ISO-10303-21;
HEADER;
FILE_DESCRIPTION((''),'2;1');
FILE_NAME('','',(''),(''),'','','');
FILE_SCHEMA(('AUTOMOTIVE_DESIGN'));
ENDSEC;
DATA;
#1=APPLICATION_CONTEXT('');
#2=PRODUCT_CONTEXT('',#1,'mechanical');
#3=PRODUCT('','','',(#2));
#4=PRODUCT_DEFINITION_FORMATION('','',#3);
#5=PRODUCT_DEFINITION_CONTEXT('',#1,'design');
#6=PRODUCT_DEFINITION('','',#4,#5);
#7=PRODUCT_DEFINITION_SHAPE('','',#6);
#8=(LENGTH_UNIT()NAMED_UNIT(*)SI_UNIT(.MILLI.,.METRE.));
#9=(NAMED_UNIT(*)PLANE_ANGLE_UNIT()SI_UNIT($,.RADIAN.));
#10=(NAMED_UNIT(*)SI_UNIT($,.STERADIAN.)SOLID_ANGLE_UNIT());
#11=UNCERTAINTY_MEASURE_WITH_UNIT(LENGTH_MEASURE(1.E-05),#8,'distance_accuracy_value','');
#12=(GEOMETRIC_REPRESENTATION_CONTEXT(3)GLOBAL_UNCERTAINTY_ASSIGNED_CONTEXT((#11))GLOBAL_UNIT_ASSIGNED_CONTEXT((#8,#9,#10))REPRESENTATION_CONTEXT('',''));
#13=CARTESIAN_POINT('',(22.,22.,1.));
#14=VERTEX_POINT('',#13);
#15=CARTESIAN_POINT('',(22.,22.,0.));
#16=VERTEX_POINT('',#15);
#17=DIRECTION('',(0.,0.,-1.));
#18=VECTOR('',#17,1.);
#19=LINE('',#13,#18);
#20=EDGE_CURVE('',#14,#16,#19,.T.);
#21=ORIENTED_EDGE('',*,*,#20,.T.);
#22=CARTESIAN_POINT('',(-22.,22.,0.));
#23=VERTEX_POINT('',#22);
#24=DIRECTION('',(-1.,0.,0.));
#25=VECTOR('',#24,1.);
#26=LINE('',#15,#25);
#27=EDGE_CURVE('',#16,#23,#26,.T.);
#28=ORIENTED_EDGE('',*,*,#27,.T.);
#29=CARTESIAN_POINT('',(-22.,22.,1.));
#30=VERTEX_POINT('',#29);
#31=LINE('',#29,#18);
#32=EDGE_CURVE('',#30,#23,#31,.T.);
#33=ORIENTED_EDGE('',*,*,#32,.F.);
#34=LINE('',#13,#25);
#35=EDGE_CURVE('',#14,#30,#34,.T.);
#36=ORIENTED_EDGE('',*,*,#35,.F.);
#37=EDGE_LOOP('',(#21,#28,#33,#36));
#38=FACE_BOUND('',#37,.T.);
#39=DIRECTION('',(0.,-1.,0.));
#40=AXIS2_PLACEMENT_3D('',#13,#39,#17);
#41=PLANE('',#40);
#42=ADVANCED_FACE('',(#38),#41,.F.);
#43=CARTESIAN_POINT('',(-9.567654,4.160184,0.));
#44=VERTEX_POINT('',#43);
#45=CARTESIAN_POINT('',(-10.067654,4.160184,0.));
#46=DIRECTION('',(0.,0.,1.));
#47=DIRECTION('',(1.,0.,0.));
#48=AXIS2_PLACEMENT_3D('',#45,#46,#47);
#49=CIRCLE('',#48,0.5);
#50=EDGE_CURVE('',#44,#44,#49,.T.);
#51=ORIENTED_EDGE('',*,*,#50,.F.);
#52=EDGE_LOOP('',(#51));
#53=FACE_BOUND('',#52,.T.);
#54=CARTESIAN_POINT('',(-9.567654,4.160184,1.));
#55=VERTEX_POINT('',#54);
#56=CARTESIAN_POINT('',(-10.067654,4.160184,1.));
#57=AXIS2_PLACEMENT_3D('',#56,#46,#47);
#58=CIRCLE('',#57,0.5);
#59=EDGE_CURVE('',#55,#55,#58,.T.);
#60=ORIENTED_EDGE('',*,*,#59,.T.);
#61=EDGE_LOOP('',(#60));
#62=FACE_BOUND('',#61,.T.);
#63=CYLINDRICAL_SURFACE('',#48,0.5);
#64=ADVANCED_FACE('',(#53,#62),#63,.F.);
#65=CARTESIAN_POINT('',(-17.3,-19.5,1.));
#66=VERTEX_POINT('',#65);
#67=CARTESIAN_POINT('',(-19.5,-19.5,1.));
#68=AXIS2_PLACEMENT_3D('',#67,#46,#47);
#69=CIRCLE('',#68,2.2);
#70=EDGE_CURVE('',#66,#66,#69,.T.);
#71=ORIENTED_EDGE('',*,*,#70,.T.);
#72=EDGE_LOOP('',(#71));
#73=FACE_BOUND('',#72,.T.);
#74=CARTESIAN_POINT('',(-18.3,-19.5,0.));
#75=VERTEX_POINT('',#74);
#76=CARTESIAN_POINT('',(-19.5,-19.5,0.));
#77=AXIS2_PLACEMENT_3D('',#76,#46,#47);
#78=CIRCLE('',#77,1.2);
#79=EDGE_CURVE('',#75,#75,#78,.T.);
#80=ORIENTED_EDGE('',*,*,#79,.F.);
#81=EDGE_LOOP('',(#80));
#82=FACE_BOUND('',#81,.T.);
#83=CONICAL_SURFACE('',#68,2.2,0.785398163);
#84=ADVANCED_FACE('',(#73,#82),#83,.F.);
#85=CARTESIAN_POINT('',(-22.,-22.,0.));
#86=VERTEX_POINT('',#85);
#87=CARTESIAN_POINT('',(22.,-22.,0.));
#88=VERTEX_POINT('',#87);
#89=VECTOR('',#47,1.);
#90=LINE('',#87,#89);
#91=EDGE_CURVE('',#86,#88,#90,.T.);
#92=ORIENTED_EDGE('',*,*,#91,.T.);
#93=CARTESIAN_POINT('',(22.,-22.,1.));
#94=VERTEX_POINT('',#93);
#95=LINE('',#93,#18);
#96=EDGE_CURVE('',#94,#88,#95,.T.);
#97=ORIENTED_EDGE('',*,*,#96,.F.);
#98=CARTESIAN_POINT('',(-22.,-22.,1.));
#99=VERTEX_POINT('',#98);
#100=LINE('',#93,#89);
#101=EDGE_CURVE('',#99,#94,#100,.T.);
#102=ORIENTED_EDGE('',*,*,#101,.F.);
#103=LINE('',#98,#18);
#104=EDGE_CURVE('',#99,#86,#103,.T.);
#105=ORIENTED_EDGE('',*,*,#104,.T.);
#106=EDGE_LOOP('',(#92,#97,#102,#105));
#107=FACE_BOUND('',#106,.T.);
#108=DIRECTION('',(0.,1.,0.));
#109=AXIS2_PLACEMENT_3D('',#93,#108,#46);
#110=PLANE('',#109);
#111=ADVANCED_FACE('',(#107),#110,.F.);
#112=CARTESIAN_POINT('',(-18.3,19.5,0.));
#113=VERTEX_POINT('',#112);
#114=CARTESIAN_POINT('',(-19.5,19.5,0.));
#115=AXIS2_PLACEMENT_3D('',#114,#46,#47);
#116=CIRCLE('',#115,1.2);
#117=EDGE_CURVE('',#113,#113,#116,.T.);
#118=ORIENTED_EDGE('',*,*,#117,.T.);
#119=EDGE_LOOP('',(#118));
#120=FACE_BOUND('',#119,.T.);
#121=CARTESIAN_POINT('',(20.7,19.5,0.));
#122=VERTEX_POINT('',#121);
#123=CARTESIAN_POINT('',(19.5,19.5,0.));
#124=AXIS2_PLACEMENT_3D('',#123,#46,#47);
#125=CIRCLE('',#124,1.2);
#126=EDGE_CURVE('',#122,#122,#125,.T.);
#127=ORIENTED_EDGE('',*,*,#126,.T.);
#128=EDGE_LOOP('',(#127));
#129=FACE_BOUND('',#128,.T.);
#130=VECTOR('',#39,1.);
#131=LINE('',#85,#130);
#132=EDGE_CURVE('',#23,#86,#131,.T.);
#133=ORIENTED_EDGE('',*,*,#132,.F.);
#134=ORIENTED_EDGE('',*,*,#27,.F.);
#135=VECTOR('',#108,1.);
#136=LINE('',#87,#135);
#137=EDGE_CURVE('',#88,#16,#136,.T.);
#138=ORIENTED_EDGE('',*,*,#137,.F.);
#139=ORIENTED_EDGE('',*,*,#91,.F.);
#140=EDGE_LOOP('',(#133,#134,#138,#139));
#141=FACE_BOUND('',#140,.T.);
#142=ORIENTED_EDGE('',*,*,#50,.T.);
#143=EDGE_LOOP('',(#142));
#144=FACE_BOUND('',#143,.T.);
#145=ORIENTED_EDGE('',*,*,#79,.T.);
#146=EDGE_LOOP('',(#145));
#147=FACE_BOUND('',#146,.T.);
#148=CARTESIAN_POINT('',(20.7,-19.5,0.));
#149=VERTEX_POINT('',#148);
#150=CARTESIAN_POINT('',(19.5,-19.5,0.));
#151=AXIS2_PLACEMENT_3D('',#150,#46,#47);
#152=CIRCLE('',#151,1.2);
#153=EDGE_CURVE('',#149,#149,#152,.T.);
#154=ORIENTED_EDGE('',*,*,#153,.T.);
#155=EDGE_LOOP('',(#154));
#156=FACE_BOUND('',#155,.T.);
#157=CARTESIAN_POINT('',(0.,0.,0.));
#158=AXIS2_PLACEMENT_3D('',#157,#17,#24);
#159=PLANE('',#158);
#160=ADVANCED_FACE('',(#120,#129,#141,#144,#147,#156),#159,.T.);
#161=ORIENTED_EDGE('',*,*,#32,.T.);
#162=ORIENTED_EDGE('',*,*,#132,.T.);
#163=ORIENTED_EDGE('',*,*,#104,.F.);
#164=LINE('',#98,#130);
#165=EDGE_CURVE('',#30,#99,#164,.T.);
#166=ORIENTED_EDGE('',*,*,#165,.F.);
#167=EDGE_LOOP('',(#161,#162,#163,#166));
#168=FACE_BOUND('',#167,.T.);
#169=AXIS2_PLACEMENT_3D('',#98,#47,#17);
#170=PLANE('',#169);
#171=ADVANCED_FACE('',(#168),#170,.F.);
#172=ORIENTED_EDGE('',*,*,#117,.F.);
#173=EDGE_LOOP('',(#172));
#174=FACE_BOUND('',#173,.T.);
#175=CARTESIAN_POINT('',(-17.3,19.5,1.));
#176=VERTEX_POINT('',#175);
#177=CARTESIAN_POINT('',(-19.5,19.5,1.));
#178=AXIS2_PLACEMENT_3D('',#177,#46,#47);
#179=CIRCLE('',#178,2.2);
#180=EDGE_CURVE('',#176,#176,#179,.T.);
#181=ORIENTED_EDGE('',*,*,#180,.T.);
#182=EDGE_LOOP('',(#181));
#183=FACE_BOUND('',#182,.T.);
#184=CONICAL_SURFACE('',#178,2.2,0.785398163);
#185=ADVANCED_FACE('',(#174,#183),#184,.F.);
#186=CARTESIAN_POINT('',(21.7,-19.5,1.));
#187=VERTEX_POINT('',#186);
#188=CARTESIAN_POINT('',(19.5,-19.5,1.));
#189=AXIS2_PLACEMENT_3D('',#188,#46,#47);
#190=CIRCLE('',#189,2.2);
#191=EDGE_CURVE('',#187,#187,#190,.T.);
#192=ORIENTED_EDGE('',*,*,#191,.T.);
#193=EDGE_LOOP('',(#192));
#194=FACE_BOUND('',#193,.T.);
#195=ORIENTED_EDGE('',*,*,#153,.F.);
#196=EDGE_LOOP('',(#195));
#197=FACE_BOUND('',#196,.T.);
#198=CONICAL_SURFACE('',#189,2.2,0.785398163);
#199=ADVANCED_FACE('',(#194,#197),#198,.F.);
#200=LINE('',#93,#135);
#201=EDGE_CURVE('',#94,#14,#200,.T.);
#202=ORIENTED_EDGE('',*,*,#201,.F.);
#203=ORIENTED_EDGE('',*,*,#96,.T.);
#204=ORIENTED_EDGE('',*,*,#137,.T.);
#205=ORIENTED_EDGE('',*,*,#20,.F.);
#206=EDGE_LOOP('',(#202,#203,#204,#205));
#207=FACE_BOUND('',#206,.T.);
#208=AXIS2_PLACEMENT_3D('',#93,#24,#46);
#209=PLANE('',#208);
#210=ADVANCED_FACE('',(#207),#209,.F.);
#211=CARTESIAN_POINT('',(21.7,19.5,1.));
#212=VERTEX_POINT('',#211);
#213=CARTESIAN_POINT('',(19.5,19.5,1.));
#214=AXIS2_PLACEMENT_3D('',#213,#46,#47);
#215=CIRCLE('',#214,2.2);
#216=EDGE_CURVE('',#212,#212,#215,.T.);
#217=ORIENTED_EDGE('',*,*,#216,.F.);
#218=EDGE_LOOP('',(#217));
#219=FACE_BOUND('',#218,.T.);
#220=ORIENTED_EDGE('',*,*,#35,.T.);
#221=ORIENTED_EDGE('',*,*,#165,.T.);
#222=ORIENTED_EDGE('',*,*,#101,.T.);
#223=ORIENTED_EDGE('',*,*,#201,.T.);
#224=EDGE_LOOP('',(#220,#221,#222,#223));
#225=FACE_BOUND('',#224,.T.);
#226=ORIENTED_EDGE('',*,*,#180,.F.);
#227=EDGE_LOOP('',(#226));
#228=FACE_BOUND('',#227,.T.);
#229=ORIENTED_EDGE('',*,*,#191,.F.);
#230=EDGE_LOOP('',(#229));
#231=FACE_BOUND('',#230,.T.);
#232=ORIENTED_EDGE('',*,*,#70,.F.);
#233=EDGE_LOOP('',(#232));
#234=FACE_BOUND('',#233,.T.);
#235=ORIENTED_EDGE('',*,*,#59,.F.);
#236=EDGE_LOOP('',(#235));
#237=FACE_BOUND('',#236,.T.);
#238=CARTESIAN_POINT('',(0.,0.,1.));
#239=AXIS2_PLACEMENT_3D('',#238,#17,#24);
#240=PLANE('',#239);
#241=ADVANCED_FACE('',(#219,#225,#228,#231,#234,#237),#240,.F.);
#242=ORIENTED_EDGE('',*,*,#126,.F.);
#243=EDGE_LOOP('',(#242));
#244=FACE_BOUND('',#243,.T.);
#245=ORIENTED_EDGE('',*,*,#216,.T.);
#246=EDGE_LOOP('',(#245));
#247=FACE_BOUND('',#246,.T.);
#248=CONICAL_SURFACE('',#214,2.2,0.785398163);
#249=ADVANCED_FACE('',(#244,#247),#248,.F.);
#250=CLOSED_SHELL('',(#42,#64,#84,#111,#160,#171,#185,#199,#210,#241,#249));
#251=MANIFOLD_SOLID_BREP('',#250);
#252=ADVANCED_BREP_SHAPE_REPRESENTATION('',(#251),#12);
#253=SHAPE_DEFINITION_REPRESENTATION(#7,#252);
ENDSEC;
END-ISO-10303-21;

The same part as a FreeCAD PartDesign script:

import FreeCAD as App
import Part
import Sketcher

V = App.Vector
Q = App.Units.Quantity


def add_polygon(sketch, points):
    """Adds a closed chain of lines whose ends are joined by coincident constraints."""
    first, n = sketch.GeometryCount, len(points)
    for a, b in zip(points, points[1:] + points[:1]):
        sketch.addGeometry(Part.LineSegment(App.Vector(*a, 0), App.Vector(*b, 0)), False)
    for i in range(n):
        sketch.addConstraint(Sketcher.Constraint("Coincident", first + i, 2, first + (i + 1) % n, 1))

doc = App.newDocument("Part")
params = doc.addObject("Spreadsheet::Sheet", "Params")
for row, (alias, value) in enumerate([
    ("sketch1_width", "44 mm"),
    ("pad1_length", "1 mm"),
    ("sketch2_diameter", "1 mm"),
    ("sketch3_height", "2 mm"),
    ("sketch3_height2", "1 mm"),
    ("sketch3_width", "2.2 mm"),
    ("groove_angle", "360 deg"),
    ("linearpattern_pitch", "39 mm"),
    ("linearpattern2_pitch", "55.154329 mm"),
    ("linearpattern3_pitch", "39 mm"),
], start=1):
    params.set(f"A{row}", alias)
    params.set(f"B{row}", "=" + value)
    params.setAlias(f"B{row}", alias)

body = doc.addObject("PartDesign::Body", "Body")

# Sketch on XY plane
sketch1 = body.newObject("Sketcher::SketchObject", "Sketch")
sketch1.AttachmentSupport = (doc.getObject("XY_Plane"), [""])
sketch1.MapMode = "FlatFace"
add_polygon(sketch1, [(-22, -22), (22, -22), (22, 22), (-22, 22)])  # lines 0-3
sketch1.addConstraint(Sketcher.Constraint("Horizontal", 0))
sketch1.addConstraint(Sketcher.Constraint("Vertical", 1))
sketch1.addConstraint(Sketcher.Constraint("Horizontal", 2))
sketch1.addConstraint(Sketcher.Constraint("Vertical", 3))
sketch1.addConstraint(Sketcher.Constraint("Symmetric", 0, 2, 2, 2, -1, 1))
sketch1.addConstraint(Sketcher.Constraint("Equal", 2, 1))
sketch1.addConstraint(Sketcher.Constraint("DistanceX", 0, 1, 0, 2, Q("44 mm")))
sketch1.setExpression("Constraints[10]", "Params.sketch1_width")
pad1 = body.newObject("PartDesign::Pad", "Pad")
pad1.Profile = sketch1
pad1.setExpression("Length", "Params.pad1_length")

# Sketch on XY plane
sketch2 = body.newObject("Sketcher::SketchObject", "Sketch001")
sketch2.AttachmentSupport = (doc.getObject("XY_Plane"), [""])
sketch2.MapMode = "FlatFace"
sketch2.AttachmentOffset = App.Placement(V(0, 0, 1), App.Rotation())
sketch2.addGeometry(Part.Circle(V(-10.1, 4.2, 0), V(0, 0, 1), 0.5), False)
sketch2.addConstraint(Sketcher.Constraint("Diameter", 0, Q("1 mm")))
sketch2.addConstraint(Sketcher.Constraint("DistanceX", 0, 3, -1, 1, Q("10.067654 mm")))
sketch2.addConstraint(Sketcher.Constraint("DistanceY", -1, 1, 0, 3, Q("4.160184 mm")))
sketch2.setExpression("Constraints[0]", "Params.sketch2_diameter")
pocket1 = body.newObject("PartDesign::Pocket", "Pocket")
pocket1.Profile = sketch2
pocket1.Type = "ThroughAll"

# Sketch on YZ plane
sketch3 = body.newObject("Sketcher::SketchObject", "Sketch002")
sketch3.AttachmentSupport = (doc.getObject("YZ_Plane"), [""])
sketch3.MapMode = "FlatFace"
sketch3.AttachmentOffset = App.Placement(V(0, 0, 19.5), App.Rotation())
add_polygon(sketch3, [(-19.5, -1), (-19.5, 1), (-21.7, 1), (-20.7, 0), (-20.7, -1)])  # lines 0-4
sketch3.addGeometry(Part.LineSegment(V(-19.5, 1, 0), V(-19.5, -1, 0)), True)  # axis
sketch3.addConstraint(Sketcher.Constraint("Vertical", 0))
sketch3.addConstraint(Sketcher.Constraint("Horizontal", 1))
sketch3.addConstraint(Sketcher.Constraint("Vertical", 3))
sketch3.addConstraint(Sketcher.Constraint("Horizontal", 4))
sketch3.addConstraint(Sketcher.Constraint("Vertical", 5))
sketch3.addConstraint(Sketcher.Constraint("Coincident", 5, 1, 0, 2))
sketch3.addConstraint(Sketcher.Constraint("PointOnObject", 2, 2, -1))
sketch3.addConstraint(Sketcher.Constraint("Horizontal", 3, 2, 5, 2))
sketch3.addConstraint(Sketcher.Constraint("DistanceY", 0, 1, 0, 2, Q("2 mm")))
sketch3.addConstraint(Sketcher.Constraint("DistanceY", 3, 2, 3, 1, Q("1 mm")))
sketch3.addConstraint(Sketcher.Constraint("Angle", 2, Q("-45 deg")))
sketch3.addConstraint(Sketcher.Constraint("DistanceX", 1, 2, 1, 1, Q("2.2 mm")))
sketch3.addConstraint(Sketcher.Constraint("DistanceX", 0, 2, -1, 1, Q("19.5 mm")))
sketch3.setExpression("Constraints[13]", "Params.sketch3_height")
sketch3.setExpression("Constraints[14]", "Params.sketch3_height2")
sketch3.setExpression("Constraints[16]", "Params.sketch3_width")
groove = body.newObject("PartDesign::Groove", "Groove")
groove.Profile = sketch3
groove.ReferenceAxis = (sketch3, ["Axis0"])
groove.setExpression("Angle", "Params.groove_angle")
doc.recompute()

linearpattern = body.newObject("PartDesign::LinearPattern", "LinearPattern")
linearpattern.Originals = [groove]
linearpattern.Direction = (doc.getObject("X_Axis"), [""])
linearpattern.Mode = "offset"
linearpattern.setExpression("Offset", "Params.linearpattern_pitch")
linearpattern.Occurrences = 2
linearpattern.Reversed = True
body.Tip = linearpattern
doc.recompute()

datumline = body.newObject("PartDesign::Line", "DatumLine")
datumline.Placement = App.Placement(V(0, 0, 0), App.Rotation(V(0, 0, 1), V(-0.707106781, 0.707106781, 0)))
linearpattern2 = body.newObject("PartDesign::LinearPattern", "LinearPattern001")
linearpattern2.Originals = [groove]
linearpattern2.Direction = (datumline, [""])
linearpattern2.Mode = "offset"
linearpattern2.setExpression("Offset", "Params.linearpattern2_pitch")
linearpattern2.Occurrences = 2
body.Tip = linearpattern2
doc.recompute()

linearpattern3 = body.newObject("PartDesign::LinearPattern", "LinearPattern002")
linearpattern3.Originals = [groove]
linearpattern3.Direction = (doc.getObject("Y_Axis"), [""])
linearpattern3.Mode = "offset"
linearpattern3.setExpression("Offset", "Params.linearpattern3_pitch")
linearpattern3.Occurrences = 2
body.Tip = linearpattern3

doc.recompute()
